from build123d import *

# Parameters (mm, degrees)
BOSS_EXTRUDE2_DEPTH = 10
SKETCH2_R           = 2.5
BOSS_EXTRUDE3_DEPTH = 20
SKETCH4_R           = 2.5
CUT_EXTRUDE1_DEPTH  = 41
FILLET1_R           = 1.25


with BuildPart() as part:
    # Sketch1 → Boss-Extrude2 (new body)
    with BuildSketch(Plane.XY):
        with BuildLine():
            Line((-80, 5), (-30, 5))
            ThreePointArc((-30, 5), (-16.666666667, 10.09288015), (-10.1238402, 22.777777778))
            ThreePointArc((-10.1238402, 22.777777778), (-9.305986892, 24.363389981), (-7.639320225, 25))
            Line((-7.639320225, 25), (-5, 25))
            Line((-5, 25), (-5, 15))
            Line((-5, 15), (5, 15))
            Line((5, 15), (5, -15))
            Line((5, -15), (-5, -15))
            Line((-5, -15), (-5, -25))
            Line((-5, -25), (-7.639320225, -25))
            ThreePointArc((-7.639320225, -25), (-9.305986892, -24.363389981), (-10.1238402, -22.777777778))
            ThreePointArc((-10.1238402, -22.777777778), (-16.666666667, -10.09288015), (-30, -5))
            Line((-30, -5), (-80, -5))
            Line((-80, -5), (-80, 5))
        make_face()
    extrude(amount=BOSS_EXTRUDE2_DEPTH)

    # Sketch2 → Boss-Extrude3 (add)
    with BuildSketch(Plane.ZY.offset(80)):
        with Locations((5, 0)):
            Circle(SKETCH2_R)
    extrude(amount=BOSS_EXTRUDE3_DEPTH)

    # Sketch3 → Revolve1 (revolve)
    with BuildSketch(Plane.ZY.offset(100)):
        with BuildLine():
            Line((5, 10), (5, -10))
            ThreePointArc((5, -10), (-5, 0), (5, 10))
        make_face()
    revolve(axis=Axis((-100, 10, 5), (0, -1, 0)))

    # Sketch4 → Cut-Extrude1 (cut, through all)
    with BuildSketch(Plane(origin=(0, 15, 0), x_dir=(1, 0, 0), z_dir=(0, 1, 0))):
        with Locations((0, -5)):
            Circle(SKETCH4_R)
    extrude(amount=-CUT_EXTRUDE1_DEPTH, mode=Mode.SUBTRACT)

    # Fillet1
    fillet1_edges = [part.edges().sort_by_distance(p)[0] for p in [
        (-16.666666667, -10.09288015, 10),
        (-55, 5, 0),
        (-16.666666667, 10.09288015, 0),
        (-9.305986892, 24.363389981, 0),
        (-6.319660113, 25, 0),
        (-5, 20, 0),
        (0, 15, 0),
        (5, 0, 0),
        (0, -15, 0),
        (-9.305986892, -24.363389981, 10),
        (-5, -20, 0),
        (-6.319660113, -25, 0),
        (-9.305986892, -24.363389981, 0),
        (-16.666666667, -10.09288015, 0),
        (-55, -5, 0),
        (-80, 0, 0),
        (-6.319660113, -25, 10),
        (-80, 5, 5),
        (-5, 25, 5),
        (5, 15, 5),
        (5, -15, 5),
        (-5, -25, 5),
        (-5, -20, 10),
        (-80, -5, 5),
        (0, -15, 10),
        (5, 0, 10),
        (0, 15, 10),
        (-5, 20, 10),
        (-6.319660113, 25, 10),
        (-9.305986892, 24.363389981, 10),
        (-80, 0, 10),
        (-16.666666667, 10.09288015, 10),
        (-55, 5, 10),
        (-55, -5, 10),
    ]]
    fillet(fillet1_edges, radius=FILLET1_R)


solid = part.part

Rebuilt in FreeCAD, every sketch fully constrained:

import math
import FreeCAD as App
import Part
import Sketcher
from FreeCAD import Vector


def edges_at(feature, points):
    """Names of the edges that pass closest to the given points."""
    edges = feature.Shape.Edges
    near = lambda p: min(range(len(edges)), key=lambda i: edges[i].distToShape(Part.Vertex(*p))[0])
    return sorted({f"Edge{near(p) + 1}" for p in points})

doc = App.newDocument("Part")
body = doc.addObject("PartDesign::Body", "Body")

# Sketch on XY plane
sketch1 = body.newObject("Sketcher::SketchObject", "Sketch")
sketch1.AttachmentSupport = (doc.getObject("XY_Plane"), [""])
sketch1.MapMode = "FlatFace"
sketch1.addGeometry([
    Part.LineSegment(Vector(-30, 5, 0), Vector(-80, 5, 0)),  # 0
    Part.LineSegment(Vector(-80, 5, 0), Vector(-80, -5, 0)),  # 1
    Part.LineSegment(Vector(-80, -5, 0), Vector(-30, -5, 0)),  # 2
    Part.ArcOfCircle(Part.Circle(Vector(-30, -25, 0), Vector(0, 0, 1), 20), math.radians(6.37937), math.radians(90)),  # 3
    Part.ArcOfCircle(Part.Circle(Vector(-7.63932, -22.5, 0), Vector(0, 0, 1), 2.5), math.radians(-173.62063), math.radians(-90)),  # 4
    Part.LineSegment(Vector(-7.63932, -25, 0), Vector(-5, -25, 0)),  # 5
    Part.LineSegment(Vector(-5, -25, 0), Vector(-5, -15, 0)),  # 6
    Part.LineSegment(Vector(-5, -15, 0), Vector(5, -15, 0)),  # 7
    Part.LineSegment(Vector(5, -15, 0), Vector(5, 15, 0)),  # 8
    Part.LineSegment(Vector(5, 15, 0), Vector(-5, 15, 0)),  # 9
    Part.LineSegment(Vector(-5, 15, 0), Vector(-5, 25, 0)),  # 10
    Part.LineSegment(Vector(-5, 25, 0), Vector(-7.63932, 25, 0)),  # 11
    Part.ArcOfCircle(Part.Circle(Vector(-7.63932, 22.5, 0), Vector(0, 0, 1), 2.5), math.radians(90), math.radians(173.62063)),  # 12
    Part.ArcOfCircle(Part.Circle(Vector(-30, 25, 0), Vector(0, 0, 1), 20), math.radians(-90), math.radians(-6.37937)),  # 13
], False)
sketch1.addConstraint([
    Sketcher.Constraint("Coincident", 0, 2, 1, 1),
    Sketcher.Constraint("Coincident", 1, 2, 2, 1),
    Sketcher.Constraint("Tangent", 2, 2, 3, 2),
    Sketcher.Constraint("Tangent", 3, 1, 4, 1),
    Sketcher.Constraint("Tangent", 4, 2, 5, 1),
    Sketcher.Constraint("Coincident", 5, 2, 6, 1),
    Sketcher.Constraint("Coincident", 6, 2, 7, 1),
    Sketcher.Constraint("Coincident", 7, 2, 8, 1),
    Sketcher.Constraint("Coincident", 8, 2, 9, 1),
    Sketcher.Constraint("Coincident", 9, 2, 10, 1),
    Sketcher.Constraint("Coincident", 10, 2, 11, 1),
    Sketcher.Constraint("Tangent", 11, 2, 12, 1),
    Sketcher.Constraint("Tangent", 12, 2, 13, 2),
    Sketcher.Constraint("Tangent", 13, 1, 0, 1),
    Sketcher.Constraint("Horizontal", 0),
    Sketcher.Constraint("Vertical", 1),
    Sketcher.Constraint("Horizontal", 2),
    Sketcher.Constraint("Horizontal", 5),
    Sketcher.Constraint("Vertical", 6),
    Sketcher.Constraint("Horizontal", 7),
    Sketcher.Constraint("Vertical", 8),
    Sketcher.Constraint("Horizontal", 9),
    Sketcher.Constraint("Vertical", 10),
    Sketcher.Constraint("Horizontal", 11),
    Sketcher.Constraint("Equal", 4, 12),
    Sketcher.Constraint("Equal", 3, 13),
    Sketcher.Constraint("Symmetric", 6, 2, 8, 2, -1, 1),
    Sketcher.Constraint("Symmetric", 4, 3, 12, 3, -1),
    Sketcher.Constraint("Horizontal", 3, 3, 4, 2),
    Sketcher.Constraint("Horizontal", 13, 3, 10, 2),
    Sketcher.Constraint("Vertical", 6, 2, 9, 2),
    Sketcher.Constraint("Equal", 9, 1),
    Sketcher.Constraint("Equal", 1, 6),
    Sketcher.Constraint("Radius", 3, 20.0),
    Sketcher.Constraint("Radius", 4, 2.5),
    Sketcher.Constraint("DistanceX", 0, 2, 0, 1, 50.0),
    Sketcher.Constraint("DistanceX", 7, 1, 7, 2, 10.0),
    Sketcher.Constraint("DistanceX", 3, 3, -1, 1, 30.0),
])
pad1 = body.newObject("PartDesign::Pad", "Pad")
pad1.Profile = sketch1
pad1.Length = 10

# Sketch on YZ plane
sketch2 = body.newObject("Sketcher::SketchObject", "Sketch001")
sketch2.AttachmentSupport = (doc.getObject("YZ_Plane"), [""])
sketch2.MapMode = "FlatFace"
sketch2.AttachmentOffset = App.Placement(Vector(0, 0, -80), App.Rotation())
sketch2.addGeometry(Part.Circle(Vector(0, 5, 0), Vector(0, 0, 1), 2.5), False)
sketch2.addConstraint([
    Sketcher.Constraint("PointOnObject", 0, 3, -2),
    Sketcher.Constraint("Diameter", 0, 5.0),
    Sketcher.Constraint("DistanceY", -1, 1, 0, 3, 5.0),
])
pad2 = body.newObject("PartDesign::Pad", "Pad001")
pad2.Profile = sketch2
pad2.Length = 20
pad2.Reversed = True

# Sketch on YZ plane
sketch3 = body.newObject("Sketcher::SketchObject", "Sketch002")
sketch3.AttachmentSupport = (doc.getObject("YZ_Plane"), [""])
sketch3.MapMode = "FlatFace"
sketch3.AttachmentOffset = App.Placement(Vector(0, 0, -100), App.Rotation())
sketch3.addGeometry([
    Part.LineSegment(Vector(-10, 5, 0), Vector(10, 5, 0)),
    Part.ArcOfCircle(Part.Circle(Vector(0, 5, 0), Vector(0, 0, 1), 10), math.radians(180), math.radians(360)),
], False)
sketch3.addGeometry(Part.LineSegment(Vector(10, 5, 0), Vector(-10, 5, 0)), True)  # axis
sketch3.addConstraint([
    Sketcher.Constraint("Coincident", 0, 1, 1, 1),
    Sketcher.Constraint("Coincident", 1, 2, 0, 2),
    Sketcher.Constraint("Horizontal", 0),
    Sketcher.Constraint("Horizontal", 2),
    Sketcher.Constraint("Coincident", 2, 1, 1, 2),
    Sketcher.Constraint("PointOnObject", 1, 3, -2),
    Sketcher.Constraint("Horizontal", 1, 3, 0, 1),
    Sketcher.Constraint("Equal", 0, 2),
    Sketcher.Constraint("Radius", 1, 10.0),
    Sketcher.Constraint("DistanceY", -1, 1, 1, 3, 5.0),
])
revolution = body.newObject("PartDesign::Revolution", "Revolution")
revolution.Profile = sketch3
revolution.ReferenceAxis = (sketch3, ["Axis0"])
revolution.Angle = 360

# Sketch on XZ plane
sketch4 = body.newObject("Sketcher::SketchObject", "Sketch003")
sketch4.AttachmentSupport = (doc.getObject("XZ_Plane"), [""])
sketch4.MapMode = "FlatFace"
sketch4.AttachmentOffset = App.Placement(Vector(0, 0, -15), App.Rotation())
sketch4.addGeometry(Part.Circle(Vector(0, 5, 0), Vector(0, 0, 1), 2.5), False)
sketch4.addConstraint([
    Sketcher.Constraint("PointOnObject", 0, 3, -2),
    Sketcher.Constraint("Diameter", 0, 5.0),
    Sketcher.Constraint("DistanceY", -1, 1, 0, 3, 5.0),
])
pocket1 = body.newObject("PartDesign::Pocket", "Pocket")
pocket1.Profile = sketch4
pocket1.Type = "ThroughAll"
pocket1.Reversed = True
doc.recompute()

fillet = body.newObject("PartDesign::Fillet", "Fillet")
fillet.Base = (pocket1, edges_at(pocket1, [
    (-16.667, -10.093, 10),
    (-55, 5, 0),
    (-16.667, 10.093, 0),
    (-9.306, 24.363, 0),
    (-6.32, 25, 0),
    (-5, 20, 0),
    (0, 15, 0),
    (5, 0, 0),
    (0, -15, 0),
    (-9.306, -24.363, 10),
    (-5, -20, 0),
    (-6.32, -25, 0),
    (-9.306, -24.363, 0),
    (-16.667, -10.093, 0),
    (-55, -5, 0),
    (-80, 0, 0),
    (-6.32, -25, 10),
    (-80, 5, 5),
    (-5, 25, 5),
    (5, 15, 5),
    (5, -15, 5),
    (-5, -25, 5),
    (-5, -20, 10),
    (-80, -5, 5),
    (0, -15, 10),
    (5, 0, 10),
    (0, 15, 10),
    (-5, 20, 10),
    (-6.32, 25, 10),
    (-9.306, 24.363, 10),
    (-80, 0, 10),
    (-16.667, 10.093, 10),
    (-55, 5, 10),
    (-55, -5, 10),
]))
fillet.Radius = 1.25

doc.recompute()
